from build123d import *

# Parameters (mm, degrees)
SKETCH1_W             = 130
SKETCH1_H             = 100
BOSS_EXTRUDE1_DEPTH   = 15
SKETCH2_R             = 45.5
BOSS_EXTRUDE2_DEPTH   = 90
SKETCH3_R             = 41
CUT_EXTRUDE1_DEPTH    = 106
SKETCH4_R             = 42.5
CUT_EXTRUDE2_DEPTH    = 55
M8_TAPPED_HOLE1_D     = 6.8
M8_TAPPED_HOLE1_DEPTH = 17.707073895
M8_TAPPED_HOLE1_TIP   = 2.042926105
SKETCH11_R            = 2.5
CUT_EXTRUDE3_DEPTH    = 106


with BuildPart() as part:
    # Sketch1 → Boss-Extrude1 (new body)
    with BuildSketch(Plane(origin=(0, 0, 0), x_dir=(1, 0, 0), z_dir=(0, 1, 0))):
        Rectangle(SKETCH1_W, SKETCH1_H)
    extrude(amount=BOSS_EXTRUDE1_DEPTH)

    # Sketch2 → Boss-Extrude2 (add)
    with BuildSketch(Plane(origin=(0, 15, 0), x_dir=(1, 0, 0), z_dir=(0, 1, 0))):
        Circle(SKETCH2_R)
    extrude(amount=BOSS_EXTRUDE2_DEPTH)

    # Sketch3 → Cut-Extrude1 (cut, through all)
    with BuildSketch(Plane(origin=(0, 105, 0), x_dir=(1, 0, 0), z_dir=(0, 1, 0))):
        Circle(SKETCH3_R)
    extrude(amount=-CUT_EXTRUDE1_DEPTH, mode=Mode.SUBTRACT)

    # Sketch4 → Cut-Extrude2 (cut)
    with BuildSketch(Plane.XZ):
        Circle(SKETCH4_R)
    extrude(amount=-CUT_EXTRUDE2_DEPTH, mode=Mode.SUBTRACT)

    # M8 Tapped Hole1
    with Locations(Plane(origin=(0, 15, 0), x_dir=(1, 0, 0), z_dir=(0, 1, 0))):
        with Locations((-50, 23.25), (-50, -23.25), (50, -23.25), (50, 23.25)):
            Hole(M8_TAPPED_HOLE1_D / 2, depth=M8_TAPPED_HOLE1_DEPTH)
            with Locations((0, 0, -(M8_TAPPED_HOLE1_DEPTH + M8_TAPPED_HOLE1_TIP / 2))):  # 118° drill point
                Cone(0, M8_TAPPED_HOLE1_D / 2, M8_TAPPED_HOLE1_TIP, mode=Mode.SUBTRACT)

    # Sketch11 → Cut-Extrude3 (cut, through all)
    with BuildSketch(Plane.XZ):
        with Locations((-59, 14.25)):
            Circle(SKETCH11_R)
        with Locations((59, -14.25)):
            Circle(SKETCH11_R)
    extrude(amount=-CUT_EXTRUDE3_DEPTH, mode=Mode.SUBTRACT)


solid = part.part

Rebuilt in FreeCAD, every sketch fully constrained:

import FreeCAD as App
import Part
import Sketcher
Q = App.Units.Quantity

doc = App.newDocument("Part")
body = doc.addObject("PartDesign::Body", "Body")

# Sketch on XZ plane
sketch1 = body.newObject("Sketcher::SketchObject", "Sketch")
sketch1.AttachmentSupport = (doc.getObject("XZ_Plane"), [""])
sketch1.MapMode = "FlatFace"
sketch1.addGeometry([
    Part.LineSegment(App.Vector(-65, -50, 0), App.Vector(-65, 50, 0)),
    Part.LineSegment(App.Vector(-65, 50, 0), App.Vector(65, 50, 0)),
    Part.LineSegment(App.Vector(65, 50, 0), App.Vector(65, -50, 0)),
    Part.LineSegment(App.Vector(65, -50, 0), App.Vector(-65, -50, 0)),
], False)
sketch1.addConstraint([
    Sketcher.Constraint("Coincident", 0, 2, 1, 1),
    Sketcher.Constraint("Coincident", 1, 2, 2, 1),
    Sketcher.Constraint("Coincident", 2, 2, 3, 1),
    Sketcher.Constraint("Coincident", 3, 2, 0, 1),
    Sketcher.Constraint("Vertical", 0),
    Sketcher.Constraint("Horizontal", 1),
    Sketcher.Constraint("Vertical", 2),
    Sketcher.Constraint("Horizontal", 3),
    Sketcher.Constraint("Symmetric", 0, 2, 2, 2, -1, 1),
    Sketcher.Constraint("DistanceX", 1, 1, 1, 2, Q("130 mm")),
    Sketcher.Constraint("DistanceY", 0, 1, 0, 2, Q("100 mm")),
])
pad1 = body.newObject("PartDesign::Pad", "Pad")
pad1.Profile = sketch1
pad1.Length = 15
pad1.Reversed = True

# Sketch on XZ plane
sketch2 = body.newObject("Sketcher::SketchObject", "Sketch001")
sketch2.AttachmentSupport = (doc.getObject("XZ_Plane"), [""])
sketch2.MapMode = "FlatFace"
sketch2.AttachmentOffset = App.Placement(App.Vector(0, 0, -15), App.Rotation())
sketch2.addGeometry(Part.Circle(App.Vector(0, 0, 0), App.Vector(0, 0, 1), 46), False)
sketch2.addConstraint([
    Sketcher.Constraint("Coincident", 0, 3, -1, 1),
    Sketcher.Constraint("Diameter", 0, Q("91 mm")),
])
pad2 = body.newObject("PartDesign::Pad", "Pad001")
pad2.Profile = sketch2
pad2.Length = 90
pad2.Reversed = True

# Sketch on XZ plane
sketch3 = body.newObject("Sketcher::SketchObject", "Sketch002")
sketch3.AttachmentSupport = (doc.getObject("XZ_Plane"), [""])
sketch3.MapMode = "FlatFace"
sketch3.AttachmentOffset = App.Placement(App.Vector(0, 0, -105), App.Rotation())
sketch3.addGeometry(Part.Circle(App.Vector(0, 0, 0), App.Vector(0, 0, 1), 41), False)
sketch3.addConstraint([
    Sketcher.Constraint("Coincident", 0, 3, -1, 1),
    Sketcher.Constraint("Diameter", 0, Q("82 mm")),
])
pocket1 = body.newObject("PartDesign::Pocket", "Pocket")
pocket1.Profile = sketch3
pocket1.Type = "ThroughAll"
pocket1.Reversed = True

# Sketch on XZ plane
sketch4 = body.newObject("Sketcher::SketchObject", "Sketch003")
sketch4.AttachmentSupport = (doc.getObject("XZ_Plane"), [""])
sketch4.MapMode = "FlatFace"
sketch4.addGeometry(Part.Circle(App.Vector(0, 0, 0), App.Vector(0, 0, 1), 42), False)
sketch4.addConstraint([
    Sketcher.Constraint("Coincident", 0, 3, -1, 1),
    Sketcher.Constraint("Diameter", 0, Q("85 mm")),
])
pocket2 = body.newObject("PartDesign::Pocket", "Pocket001")
pocket2.Profile = sketch4
pocket2.Length = 55

# Sketch on XZ plane
sketch5 = body.newObject("Sketcher::SketchObject", "Sketch004")
sketch5.AttachmentSupport = (doc.getObject("XZ_Plane"), [""])
sketch5.MapMode = "FlatFace"
sketch5.AttachmentOffset = App.Placement(App.Vector(0, 0, -15), App.Rotation())
sketch5.addGeometry([
    Part.Circle(App.Vector(-50, -23.2, 0), App.Vector(0, 0, 1), 3.4),
    Part.Circle(App.Vector(-50, 23.2, 0), App.Vector(0, 0, 1), 3.4),
    Part.Circle(App.Vector(50, 23.2, 0), App.Vector(0, 0, 1), 3.4),
    Part.Circle(App.Vector(50, -23.2, 0), App.Vector(0, 0, 1), 3.4),
], False)
sketch5.addConstraint([
    Sketcher.Constraint("Equal", 0, 1),
    Sketcher.Constraint("Equal", 1, 2),
    Sketcher.Constraint("Equal", 2, 3),
    Sketcher.Constraint("Symmetric", 0, 3, 2, 3, -1, 1),
    Sketcher.Constraint("Symmetric", 1, 3, 3, 3, -1, 1),
    Sketcher.Constraint("Symmetric", 1, 3, 2, 3, -2),
    Sketcher.Constraint("Diameter", 0, Q("6.8 mm")),
    Sketcher.Constraint("DistanceX", 0, 3, -1, 1, Q("50 mm")),
    Sketcher.Constraint("DistanceY", 0, 3, 1, 3, Q("46.5 mm")),
])
doc.recompute()
hole = body.newObject("PartDesign::Hole", "Hole")
hole.Profile = sketch5
hole.ThreadType = "None"
hole.Diameter = 6.8
hole.DepthType = "Dimension"
hole.Depth = 17.707074
hole.DrillPoint = "Angled"
hole.DrillPointAngle = 118
hole.Reversed = True

# Sketch on XZ plane
sketch6 = body.newObject("Sketcher::SketchObject", "Sketch005")
sketch6.AttachmentSupport = (doc.getObject("XZ_Plane"), [""])
sketch6.MapMode = "FlatFace"
sketch6.addGeometry([
    Part.Circle(App.Vector(-59, 14.2, 0), App.Vector(0, 0, 1), 2.5),
    Part.Circle(App.Vector(59, -14.2, 0), App.Vector(0, 0, 1), 2.5),
], False)
sketch6.addConstraint([
    Sketcher.Constraint("Equal", 0, 1),
    Sketcher.Constraint("Symmetric", 0, 3, 1, 3, -1, 1),
    Sketcher.Constraint("Diameter", 0, Q("5 mm")),
    Sketcher.Constraint("DistanceX", 0, 3, -1, 1, Q("59 mm")),
    Sketcher.Constraint("DistanceY", 1, 3, 0, 3, Q("28.5 mm")),
])
pocket3 = body.newObject("PartDesign::Pocket", "Pocket002")
pocket3.Profile = sketch6
pocket3.Type = "ThroughAll"

doc.recompute()
